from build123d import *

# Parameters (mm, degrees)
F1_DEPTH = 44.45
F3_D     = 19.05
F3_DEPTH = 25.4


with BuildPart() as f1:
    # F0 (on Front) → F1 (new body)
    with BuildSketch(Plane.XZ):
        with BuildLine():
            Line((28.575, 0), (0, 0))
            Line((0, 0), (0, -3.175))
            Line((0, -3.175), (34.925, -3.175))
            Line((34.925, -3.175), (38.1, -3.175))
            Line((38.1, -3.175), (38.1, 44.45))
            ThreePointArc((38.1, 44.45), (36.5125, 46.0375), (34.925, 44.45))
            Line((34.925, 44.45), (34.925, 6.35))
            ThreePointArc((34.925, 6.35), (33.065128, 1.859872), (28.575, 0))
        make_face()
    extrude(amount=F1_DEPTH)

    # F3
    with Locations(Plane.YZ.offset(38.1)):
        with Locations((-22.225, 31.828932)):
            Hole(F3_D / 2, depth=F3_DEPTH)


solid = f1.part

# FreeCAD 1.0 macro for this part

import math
import FreeCAD as App
import Part
import Sketcher
from FreeCAD import Vector
Q = App.Units.Quantity

doc = App.newDocument("Part")
body = doc.addObject("PartDesign::Body", "Body")

# Sketch on XZ plane
sketch1 = doc.addObject("Sketcher::SketchObject", "Sketch")
body.addObject(sketch1)
sketch1.AttachmentSupport = (doc.XZ_Plane, [""])
sketch1.MapMode = "FlatFace"
sketch1.addGeometry([
    Part.LineSegment(Vector(28.6, 0, 0), Vector(0, 0, 0)),  # 0
    Part.LineSegment(Vector(0, 0, 0), Vector(0, -3.2, 0)),  # 1
    Part.LineSegment(Vector(0, -3.2, 0), Vector(38.1, -3.2, 0)),  # 2
    Part.LineSegment(Vector(38.1, -3.2, 0), Vector(38.1, 44.5, 0)),  # 3
    Part.ArcOfCircle(Part.Circle(Vector(36.5, 44.5, 0), Vector(0, 0, 1), 1.6), math.radians(0), math.radians(180)),  # 4
    Part.LineSegment(Vector(34.9, 44.5, 0), Vector(34.9, 6.3, 0)),  # 5
    Part.ArcOfCircle(Part.Circle(Vector(28.6, 6.4, 0), Vector(0, 0, 1), 6.4), math.radians(-90), math.radians(0)),  # 6
], False)
sketch1.addConstraint([
    Sketcher.Constraint("Coincident", 0, 2, 1, 1),
    Sketcher.Constraint("Coincident", 1, 2, 2, 1),
    Sketcher.Constraint("Coincident", 2, 2, 3, 1),
    Sketcher.Constraint("Tangent", 3, 2, 4, 1),
    Sketcher.Constraint("Tangent", 4, 2, 5, 1),
    Sketcher.Constraint("Tangent", 5, 2, 6, 2),
    Sketcher.Constraint("Tangent", 6, 1, 0, 1),
    Sketcher.Constraint("Horizontal", 0),
    Sketcher.Constraint("Vertical", 1),
    Sketcher.Constraint("Horizontal", 2),
    Sketcher.Constraint("Vertical", 3),
    Sketcher.Constraint("Vertical", 5),
    Sketcher.Constraint("Coincident", 0, 2, -1, 1),
    Sketcher.Constraint("Equal", 2, 5),
    Sketcher.Constraint("Radius", 6, Q("0.25 in")),
    Sketcher.Constraint("DistanceX", 2, 1, 2, 2, Q("1.5 in")),
    Sketcher.Constraint("Radius", 4, Q("0.0625 in")),
    Sketcher.Constraint("DistanceY", 1, 2, 1, 1, Q("0.125 in")),
])
pad1 = doc.addObject("PartDesign::Pad", "Pad")
body.addObject(pad1)
pad1.Profile = sketch1
pad1.Length = Q("1.75 in")

# Sketch on YZ plane
sketch2 = doc.addObject("Sketcher::SketchObject", "Sketch001")
body.addObject(sketch2)
sketch2.AttachmentSupport = (doc.YZ_Plane, [""])
sketch2.MapMode = "FlatFace"
sketch2.AttachmentOffset = App.Placement(Vector(0, 0, 1.5 * 25.4), App.Rotation())
sketch2.addGeometry(Part.Circle(Vector(-22, 32, 0), Vector(0, 0, 1), 10), False)
sketch2.addConstraint([
    Sketcher.Constraint("Diameter", 0, Q("0.75 in")),
    Sketcher.Constraint("DistanceX", 0, 3, -1, 1, Q("0.875 in")),
    Sketcher.Constraint("DistanceY", -1, 1, 0, 3, 31.828932),
])
doc.recompute()
hole = doc.addObject("PartDesign::Hole", "Hole")
body.addObject(hole)
hole.Profile = sketch2
hole.ThreadType = "None"
hole.Diameter = Q("0.75 in")
hole.DepthType = "Dimension"
hole.Depth = Q("1 in")
hole.DrillPoint = "Flat"

doc.recompute()
